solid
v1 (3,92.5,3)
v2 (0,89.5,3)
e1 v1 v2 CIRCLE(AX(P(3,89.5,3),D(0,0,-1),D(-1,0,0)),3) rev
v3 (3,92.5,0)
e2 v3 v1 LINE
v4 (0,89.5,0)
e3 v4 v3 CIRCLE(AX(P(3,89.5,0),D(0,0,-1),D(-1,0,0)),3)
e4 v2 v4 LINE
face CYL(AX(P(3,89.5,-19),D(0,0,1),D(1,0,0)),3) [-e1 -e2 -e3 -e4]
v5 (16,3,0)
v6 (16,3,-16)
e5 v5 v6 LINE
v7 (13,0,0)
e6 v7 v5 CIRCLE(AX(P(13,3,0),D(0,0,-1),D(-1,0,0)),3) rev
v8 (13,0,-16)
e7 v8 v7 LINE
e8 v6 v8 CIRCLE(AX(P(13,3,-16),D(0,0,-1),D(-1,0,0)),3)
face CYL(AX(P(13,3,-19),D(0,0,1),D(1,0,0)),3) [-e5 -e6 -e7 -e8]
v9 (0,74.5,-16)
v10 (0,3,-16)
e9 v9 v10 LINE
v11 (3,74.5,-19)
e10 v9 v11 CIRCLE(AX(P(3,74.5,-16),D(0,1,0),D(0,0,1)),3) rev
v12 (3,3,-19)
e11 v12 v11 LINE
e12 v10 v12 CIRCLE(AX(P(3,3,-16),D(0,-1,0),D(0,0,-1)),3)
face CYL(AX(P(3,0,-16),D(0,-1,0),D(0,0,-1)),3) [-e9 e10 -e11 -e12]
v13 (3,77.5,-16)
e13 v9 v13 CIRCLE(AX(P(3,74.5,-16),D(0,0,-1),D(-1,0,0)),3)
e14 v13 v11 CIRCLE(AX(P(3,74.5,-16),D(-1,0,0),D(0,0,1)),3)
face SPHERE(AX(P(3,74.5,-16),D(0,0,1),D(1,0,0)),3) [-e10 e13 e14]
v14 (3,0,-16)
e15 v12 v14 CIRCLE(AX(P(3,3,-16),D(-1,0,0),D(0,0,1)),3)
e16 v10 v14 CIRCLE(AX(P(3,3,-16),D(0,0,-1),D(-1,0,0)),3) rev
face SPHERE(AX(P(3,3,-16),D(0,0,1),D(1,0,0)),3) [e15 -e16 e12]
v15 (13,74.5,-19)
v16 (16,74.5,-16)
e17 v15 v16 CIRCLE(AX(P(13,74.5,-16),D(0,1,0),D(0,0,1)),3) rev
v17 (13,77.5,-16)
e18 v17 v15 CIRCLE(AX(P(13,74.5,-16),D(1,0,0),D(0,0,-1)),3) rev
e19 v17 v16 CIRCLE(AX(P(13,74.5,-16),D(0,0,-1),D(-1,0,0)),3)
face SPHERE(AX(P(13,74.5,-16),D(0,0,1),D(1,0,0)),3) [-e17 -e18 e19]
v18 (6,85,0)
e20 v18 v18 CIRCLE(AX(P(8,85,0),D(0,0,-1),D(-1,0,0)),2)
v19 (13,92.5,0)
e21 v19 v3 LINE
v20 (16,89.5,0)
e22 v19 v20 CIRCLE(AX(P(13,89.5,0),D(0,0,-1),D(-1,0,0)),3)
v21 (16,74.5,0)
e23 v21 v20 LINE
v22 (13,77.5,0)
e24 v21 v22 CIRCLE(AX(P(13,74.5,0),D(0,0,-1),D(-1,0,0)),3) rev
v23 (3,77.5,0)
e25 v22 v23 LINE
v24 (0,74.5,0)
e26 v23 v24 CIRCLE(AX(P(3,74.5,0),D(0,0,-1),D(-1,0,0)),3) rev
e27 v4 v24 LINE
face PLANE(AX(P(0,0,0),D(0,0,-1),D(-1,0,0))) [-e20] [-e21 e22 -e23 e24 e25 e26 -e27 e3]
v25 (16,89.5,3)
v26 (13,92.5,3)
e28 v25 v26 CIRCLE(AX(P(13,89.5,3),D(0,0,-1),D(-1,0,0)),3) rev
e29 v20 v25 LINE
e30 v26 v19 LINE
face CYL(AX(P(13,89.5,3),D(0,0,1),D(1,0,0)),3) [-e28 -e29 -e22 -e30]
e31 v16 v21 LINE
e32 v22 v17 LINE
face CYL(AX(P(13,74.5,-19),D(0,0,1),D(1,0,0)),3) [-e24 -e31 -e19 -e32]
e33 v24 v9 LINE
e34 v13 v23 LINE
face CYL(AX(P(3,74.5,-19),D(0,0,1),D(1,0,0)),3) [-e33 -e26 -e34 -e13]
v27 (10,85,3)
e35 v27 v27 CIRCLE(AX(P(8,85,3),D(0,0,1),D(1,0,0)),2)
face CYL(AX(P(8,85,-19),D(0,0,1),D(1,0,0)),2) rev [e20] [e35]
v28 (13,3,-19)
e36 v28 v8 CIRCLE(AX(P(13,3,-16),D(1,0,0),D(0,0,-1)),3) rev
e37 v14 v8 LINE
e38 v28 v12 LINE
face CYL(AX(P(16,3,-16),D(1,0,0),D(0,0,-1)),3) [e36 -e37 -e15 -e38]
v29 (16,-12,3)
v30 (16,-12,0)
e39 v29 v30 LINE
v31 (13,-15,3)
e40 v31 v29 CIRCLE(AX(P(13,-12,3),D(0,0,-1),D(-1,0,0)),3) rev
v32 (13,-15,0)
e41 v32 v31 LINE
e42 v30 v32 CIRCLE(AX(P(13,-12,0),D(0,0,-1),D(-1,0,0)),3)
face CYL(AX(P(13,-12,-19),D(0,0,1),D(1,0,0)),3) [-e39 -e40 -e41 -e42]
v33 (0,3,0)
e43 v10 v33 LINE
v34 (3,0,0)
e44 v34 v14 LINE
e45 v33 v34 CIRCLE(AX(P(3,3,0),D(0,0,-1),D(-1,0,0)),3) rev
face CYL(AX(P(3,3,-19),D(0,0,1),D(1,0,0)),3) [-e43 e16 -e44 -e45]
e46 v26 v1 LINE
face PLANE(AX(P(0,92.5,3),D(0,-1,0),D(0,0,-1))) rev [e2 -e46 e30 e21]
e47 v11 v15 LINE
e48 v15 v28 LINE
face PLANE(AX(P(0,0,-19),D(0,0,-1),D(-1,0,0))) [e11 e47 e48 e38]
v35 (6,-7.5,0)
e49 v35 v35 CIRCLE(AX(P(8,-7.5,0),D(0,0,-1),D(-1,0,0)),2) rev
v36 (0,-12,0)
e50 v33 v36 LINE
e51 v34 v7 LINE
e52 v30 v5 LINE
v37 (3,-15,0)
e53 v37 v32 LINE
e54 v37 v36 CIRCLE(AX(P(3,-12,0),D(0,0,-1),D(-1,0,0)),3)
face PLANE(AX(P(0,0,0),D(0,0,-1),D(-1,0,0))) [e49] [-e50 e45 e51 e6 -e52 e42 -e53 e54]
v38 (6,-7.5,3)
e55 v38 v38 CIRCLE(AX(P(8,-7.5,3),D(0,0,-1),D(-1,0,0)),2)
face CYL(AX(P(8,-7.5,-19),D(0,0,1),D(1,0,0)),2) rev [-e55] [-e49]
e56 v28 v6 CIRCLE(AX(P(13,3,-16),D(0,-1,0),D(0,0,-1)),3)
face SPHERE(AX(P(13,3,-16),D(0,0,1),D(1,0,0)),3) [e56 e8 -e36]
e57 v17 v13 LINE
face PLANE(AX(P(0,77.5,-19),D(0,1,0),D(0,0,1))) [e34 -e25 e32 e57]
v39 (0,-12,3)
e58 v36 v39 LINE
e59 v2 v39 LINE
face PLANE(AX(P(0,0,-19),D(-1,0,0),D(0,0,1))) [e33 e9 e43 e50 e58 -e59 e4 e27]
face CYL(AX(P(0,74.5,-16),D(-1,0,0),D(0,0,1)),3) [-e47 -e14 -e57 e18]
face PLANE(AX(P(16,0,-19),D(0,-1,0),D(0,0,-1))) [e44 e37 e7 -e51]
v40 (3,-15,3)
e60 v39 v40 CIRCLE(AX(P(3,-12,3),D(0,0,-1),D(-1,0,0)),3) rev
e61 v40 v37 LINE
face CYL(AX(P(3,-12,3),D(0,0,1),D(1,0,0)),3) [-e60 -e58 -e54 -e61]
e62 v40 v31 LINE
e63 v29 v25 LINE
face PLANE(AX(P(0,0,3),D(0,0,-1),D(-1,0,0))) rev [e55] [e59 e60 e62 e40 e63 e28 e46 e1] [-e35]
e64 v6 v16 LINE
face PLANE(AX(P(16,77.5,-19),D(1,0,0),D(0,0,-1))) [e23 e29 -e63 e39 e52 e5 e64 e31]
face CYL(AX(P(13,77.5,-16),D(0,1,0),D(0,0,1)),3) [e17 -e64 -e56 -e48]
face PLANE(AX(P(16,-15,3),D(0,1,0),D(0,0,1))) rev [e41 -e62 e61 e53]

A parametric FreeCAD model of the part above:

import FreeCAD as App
import Part
import Sketcher

V = App.Vector
Q = App.Units.Quantity


def edges_at(feature, points):
    """Names of the edges that pass closest to the given points."""
    edges = feature.Shape.Edges
    near = lambda p: min(range(len(edges)), key=lambda i: edges[i].distToShape(Part.Vertex(*p))[0])
    return sorted({f"Edge{near(p) + 1}" for p in points})


def add_polygon(sketch, points):
    """Adds a closed chain of lines whose ends are joined by coincident constraints."""
    first, n = sketch.GeometryCount, len(points)
    for a, b in zip(points, points[1:] + points[:1]):
        sketch.addGeometry(Part.LineSegment(App.Vector(*a, 0), App.Vector(*b, 0)), False)
    for i in range(n):
        sketch.addConstraint(Sketcher.Constraint("Coincident", first + i, 2, first + (i + 1) % n, 1))

doc = App.newDocument("Part")
body = doc.addObject("PartDesign::Body", "Body")

# Sketch on XY plane
sketch1 = doc.addObject("Sketcher::SketchObject", "Sketch")
body.addObject(sketch1)
sketch1.AttachmentSupport = (doc.XY_Plane, [""])
sketch1.MapMode = "FlatFace"
add_polygon(sketch1, [(0, 78), (0, 0), (16, 0), (16, 78)])  # lines 0-3
sketch1.addConstraint(Sketcher.Constraint("Vertical", 0))
sketch1.addConstraint(Sketcher.Constraint("Horizontal", 1))
sketch1.addConstraint(Sketcher.Constraint("Vertical", 2))
sketch1.addConstraint(Sketcher.Constraint("Horizontal", 3))
sketch1.addConstraint(Sketcher.Constraint("Coincident", 0, 2, -1, 1))
sketch1.addConstraint(Sketcher.Constraint("DistanceX", 1, 1, 1, 2, Q("16 mm")))
sketch1.addConstraint(Sketcher.Constraint("DistanceY", 0, 2, 0, 1, Q("77.5 mm")))
pad1 = doc.addObject("PartDesign::Pad", "Pad")
body.addObject(pad1)
pad1.Profile = sketch1
pad1.Length = 19
pad1.Reversed = True

# Sketch on XY plane
sketch2 = doc.addObject("Sketcher::SketchObject", "Sketch001")
body.addObject(sketch2)
sketch2.AttachmentSupport = (doc.XY_Plane, [""])
sketch2.MapMode = "FlatFace"
add_polygon(sketch2, [(0, 92), (0, -15), (16, -15), (16, 92)])  # lines 0-3
sketch2.addConstraint(Sketcher.Constraint("Vertical", 0))
sketch2.addConstraint(Sketcher.Constraint("Horizontal", 1))
sketch2.addConstraint(Sketcher.Constraint("Vertical", 2))
sketch2.addConstraint(Sketcher.Constraint("Horizontal", 3))
sketch2.addConstraint(Sketcher.Constraint("PointOnObject", 0, 2, -2))
sketch2.addConstraint(Sketcher.Constraint("DistanceX", 1, 1, 1, 2, Q("16 mm")))
sketch2.addConstraint(Sketcher.Constraint("DistanceY", 0, 2, 0, 1, Q("107.5 mm")))
sketch2.addConstraint(Sketcher.Constraint("DistanceY", 0, 2, -1, 1, Q("15 mm")))
pad2 = doc.addObject("PartDesign::Pad", "Pad001")
body.addObject(pad2)
pad2.Profile = sketch2
pad2.Length = 3

# Sketch on XY plane
sketch3 = doc.addObject("Sketcher::SketchObject", "Sketch002")
body.addObject(sketch3)
sketch3.AttachmentSupport = (doc.XY_Plane, [""])
sketch3.MapMode = "FlatFace"
sketch3.AttachmentOffset = App.Placement(V(0, 0, 3), App.Rotation())
sketch3.addGeometry(Part.Circle(V(8, 85, 0), V(0, 0, 1), 2), False)
sketch3.addGeometry(Part.Circle(V(8, -7.5, 0), V(0, 0, 1), 2), False)
sketch3.addConstraint(Sketcher.Constraint("Equal", 0, 1))
sketch3.addConstraint(Sketcher.Constraint("Vertical", 0, 3, 1, 3))
sketch3.addConstraint(Sketcher.Constraint("Diameter", 0, Q("4 mm")))
sketch3.addConstraint(Sketcher.Constraint("DistanceX", -1, 1, 0, 3, Q("8 mm")))
sketch3.addConstraint(Sketcher.Constraint("DistanceY", -1, 1, 0, 3, Q("85 mm")))
sketch3.addConstraint(Sketcher.Constraint("DistanceY", 1, 3, -1, 1, Q("7.5 mm")))
pocket1 = doc.addObject("PartDesign::Pocket", "Pocket")
body.addObject(pocket1)
pocket1.Profile = sketch3
pocket1.Type = "ThroughAll"
doc.recompute()

fillet = doc.addObject("PartDesign::Fillet", "Fillet")
body.addObject(fillet)
fillet.Base = (pocket1, edges_at(pocket1, [
    (8, 77.5, -19),
    (0, 38.75, -19),
    (8, 0, -19),
    (16, 38.75, -19),
    (0, 0, -9.5),
    (0, 77.5, -9.5),
    (16, 77.5, -9.5),
    (16, 0, -9.5),
]))
fillet.Radius = 3
doc.recompute()

fillet2 = doc.addObject("PartDesign::Fillet", "Fillet001")
body.addObject(fillet2)
fillet2.Base = (fillet, edges_at(fillet, [
    (0, -15, 1.5),
    (16, -15, 1.5),
    (16, 92.5, 1.5),
    (0, 92.5, 1.5),
]))
fillet2.Radius = 3

doc.recompute()
